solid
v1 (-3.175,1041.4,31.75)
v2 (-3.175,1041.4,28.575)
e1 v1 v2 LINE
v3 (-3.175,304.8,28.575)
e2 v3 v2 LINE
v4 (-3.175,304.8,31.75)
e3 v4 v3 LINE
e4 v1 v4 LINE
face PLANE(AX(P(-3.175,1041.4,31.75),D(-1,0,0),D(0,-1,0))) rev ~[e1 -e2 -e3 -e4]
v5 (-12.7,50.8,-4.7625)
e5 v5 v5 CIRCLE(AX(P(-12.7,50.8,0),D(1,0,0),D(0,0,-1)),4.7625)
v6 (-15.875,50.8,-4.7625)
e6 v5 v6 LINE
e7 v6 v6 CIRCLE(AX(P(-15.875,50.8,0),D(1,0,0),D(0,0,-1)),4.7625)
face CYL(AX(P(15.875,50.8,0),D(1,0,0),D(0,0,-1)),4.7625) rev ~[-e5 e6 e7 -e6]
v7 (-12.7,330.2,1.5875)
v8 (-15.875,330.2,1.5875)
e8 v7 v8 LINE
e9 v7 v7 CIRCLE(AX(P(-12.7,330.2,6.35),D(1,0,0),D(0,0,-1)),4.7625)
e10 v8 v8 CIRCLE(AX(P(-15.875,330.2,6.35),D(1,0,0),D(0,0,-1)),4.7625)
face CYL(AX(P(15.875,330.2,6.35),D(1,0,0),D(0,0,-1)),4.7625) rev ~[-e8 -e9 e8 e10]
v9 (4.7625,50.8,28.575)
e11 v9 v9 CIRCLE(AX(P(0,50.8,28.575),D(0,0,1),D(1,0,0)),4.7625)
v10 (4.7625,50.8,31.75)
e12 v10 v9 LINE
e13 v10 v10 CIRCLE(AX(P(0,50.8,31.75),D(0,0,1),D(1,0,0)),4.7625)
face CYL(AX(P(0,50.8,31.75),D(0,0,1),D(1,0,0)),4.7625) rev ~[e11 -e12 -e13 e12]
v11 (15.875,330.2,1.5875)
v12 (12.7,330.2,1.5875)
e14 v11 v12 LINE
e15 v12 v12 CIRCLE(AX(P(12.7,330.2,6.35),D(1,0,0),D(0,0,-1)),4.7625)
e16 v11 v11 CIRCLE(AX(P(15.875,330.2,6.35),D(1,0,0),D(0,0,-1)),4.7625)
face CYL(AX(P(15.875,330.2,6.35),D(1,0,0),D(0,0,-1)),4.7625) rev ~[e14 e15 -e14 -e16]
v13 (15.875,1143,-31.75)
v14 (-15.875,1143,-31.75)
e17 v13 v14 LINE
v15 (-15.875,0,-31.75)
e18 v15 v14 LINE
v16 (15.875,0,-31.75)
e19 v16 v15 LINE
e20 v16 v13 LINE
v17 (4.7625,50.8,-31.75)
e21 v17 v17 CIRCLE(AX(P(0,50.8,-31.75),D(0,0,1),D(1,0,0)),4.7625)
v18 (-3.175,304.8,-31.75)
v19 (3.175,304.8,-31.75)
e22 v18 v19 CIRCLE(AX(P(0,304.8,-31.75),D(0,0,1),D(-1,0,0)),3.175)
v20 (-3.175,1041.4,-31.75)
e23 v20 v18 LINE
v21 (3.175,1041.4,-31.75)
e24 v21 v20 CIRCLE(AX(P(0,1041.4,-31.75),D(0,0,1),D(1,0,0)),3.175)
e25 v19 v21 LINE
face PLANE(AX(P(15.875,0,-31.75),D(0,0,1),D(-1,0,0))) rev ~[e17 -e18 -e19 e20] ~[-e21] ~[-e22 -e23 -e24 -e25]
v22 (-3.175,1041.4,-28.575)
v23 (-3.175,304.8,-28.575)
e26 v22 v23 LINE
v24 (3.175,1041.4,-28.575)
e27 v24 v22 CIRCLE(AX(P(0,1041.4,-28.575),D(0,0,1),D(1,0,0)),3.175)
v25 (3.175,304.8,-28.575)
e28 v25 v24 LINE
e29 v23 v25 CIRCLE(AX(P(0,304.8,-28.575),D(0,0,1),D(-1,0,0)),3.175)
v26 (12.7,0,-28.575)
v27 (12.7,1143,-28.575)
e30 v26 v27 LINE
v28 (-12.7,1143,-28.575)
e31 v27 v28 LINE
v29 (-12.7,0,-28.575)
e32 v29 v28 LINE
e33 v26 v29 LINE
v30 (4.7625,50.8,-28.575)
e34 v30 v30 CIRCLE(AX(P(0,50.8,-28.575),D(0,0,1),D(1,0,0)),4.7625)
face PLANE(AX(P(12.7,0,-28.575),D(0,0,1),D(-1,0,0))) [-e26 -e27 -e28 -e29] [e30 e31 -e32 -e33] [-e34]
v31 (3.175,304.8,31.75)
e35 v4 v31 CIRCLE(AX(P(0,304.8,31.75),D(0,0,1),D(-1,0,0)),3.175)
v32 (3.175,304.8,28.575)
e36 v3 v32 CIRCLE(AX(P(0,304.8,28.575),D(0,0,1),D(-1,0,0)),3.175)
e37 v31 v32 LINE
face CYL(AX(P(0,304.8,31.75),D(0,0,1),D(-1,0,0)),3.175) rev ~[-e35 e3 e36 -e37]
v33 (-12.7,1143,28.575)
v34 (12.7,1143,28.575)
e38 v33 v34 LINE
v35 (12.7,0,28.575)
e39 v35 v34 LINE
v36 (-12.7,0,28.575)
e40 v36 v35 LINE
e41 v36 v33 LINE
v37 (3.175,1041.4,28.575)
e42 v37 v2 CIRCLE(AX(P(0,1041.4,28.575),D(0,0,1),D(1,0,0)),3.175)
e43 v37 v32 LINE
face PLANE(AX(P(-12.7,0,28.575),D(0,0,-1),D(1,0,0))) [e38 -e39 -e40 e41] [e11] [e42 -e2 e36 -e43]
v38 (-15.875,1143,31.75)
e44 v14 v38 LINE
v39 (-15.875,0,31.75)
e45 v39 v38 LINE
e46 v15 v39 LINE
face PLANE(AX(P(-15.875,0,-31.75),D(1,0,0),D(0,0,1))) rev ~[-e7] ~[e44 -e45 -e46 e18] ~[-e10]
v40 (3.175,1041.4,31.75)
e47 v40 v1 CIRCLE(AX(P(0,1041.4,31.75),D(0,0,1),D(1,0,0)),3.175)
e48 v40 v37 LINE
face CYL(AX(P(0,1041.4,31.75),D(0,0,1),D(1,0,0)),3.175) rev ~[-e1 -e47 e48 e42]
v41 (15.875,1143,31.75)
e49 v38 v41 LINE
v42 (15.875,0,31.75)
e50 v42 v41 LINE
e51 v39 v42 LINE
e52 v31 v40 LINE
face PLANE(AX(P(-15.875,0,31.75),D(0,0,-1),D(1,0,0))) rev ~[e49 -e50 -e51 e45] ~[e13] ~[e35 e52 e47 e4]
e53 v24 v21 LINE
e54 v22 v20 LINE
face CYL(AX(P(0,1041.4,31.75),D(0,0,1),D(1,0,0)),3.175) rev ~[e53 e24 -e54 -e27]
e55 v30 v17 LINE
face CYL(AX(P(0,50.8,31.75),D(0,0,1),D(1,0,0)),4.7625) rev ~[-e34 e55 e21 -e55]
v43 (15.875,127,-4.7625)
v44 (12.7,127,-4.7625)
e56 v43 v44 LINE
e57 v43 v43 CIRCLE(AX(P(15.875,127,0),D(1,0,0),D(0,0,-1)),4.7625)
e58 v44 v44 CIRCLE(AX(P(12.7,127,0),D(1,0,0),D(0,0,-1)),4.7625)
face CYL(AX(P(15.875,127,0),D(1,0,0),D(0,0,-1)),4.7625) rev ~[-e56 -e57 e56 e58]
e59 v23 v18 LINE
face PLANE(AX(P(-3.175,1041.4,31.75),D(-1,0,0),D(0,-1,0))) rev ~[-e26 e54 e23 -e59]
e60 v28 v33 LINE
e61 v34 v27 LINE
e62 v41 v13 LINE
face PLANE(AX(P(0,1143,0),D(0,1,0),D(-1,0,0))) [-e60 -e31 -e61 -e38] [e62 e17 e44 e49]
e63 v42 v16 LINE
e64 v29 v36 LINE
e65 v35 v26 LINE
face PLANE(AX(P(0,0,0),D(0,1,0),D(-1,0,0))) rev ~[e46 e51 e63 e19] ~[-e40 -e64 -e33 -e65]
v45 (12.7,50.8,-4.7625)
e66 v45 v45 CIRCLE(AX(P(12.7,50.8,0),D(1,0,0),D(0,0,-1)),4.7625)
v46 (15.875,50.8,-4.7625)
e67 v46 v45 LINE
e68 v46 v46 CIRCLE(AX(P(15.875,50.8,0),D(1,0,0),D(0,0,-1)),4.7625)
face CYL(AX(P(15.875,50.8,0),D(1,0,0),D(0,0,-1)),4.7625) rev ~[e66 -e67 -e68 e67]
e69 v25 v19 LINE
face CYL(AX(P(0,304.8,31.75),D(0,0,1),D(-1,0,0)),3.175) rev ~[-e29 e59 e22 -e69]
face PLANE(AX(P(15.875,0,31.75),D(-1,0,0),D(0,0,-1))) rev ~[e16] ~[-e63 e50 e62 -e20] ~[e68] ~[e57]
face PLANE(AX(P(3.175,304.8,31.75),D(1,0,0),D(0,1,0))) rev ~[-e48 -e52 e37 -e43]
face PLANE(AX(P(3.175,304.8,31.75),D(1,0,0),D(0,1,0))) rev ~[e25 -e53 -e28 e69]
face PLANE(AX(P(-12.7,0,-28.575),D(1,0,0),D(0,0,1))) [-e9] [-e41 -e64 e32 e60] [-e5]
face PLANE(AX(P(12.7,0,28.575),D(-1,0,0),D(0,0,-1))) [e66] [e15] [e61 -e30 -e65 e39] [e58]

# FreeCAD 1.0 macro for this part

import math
import FreeCAD as App
import Part
import Sketcher

V = App.Vector
Q = App.Units.Quantity


def add_polygon(sketch, points):
    """Adds a closed chain of lines whose ends are joined by coincident constraints."""
    first, n = sketch.GeometryCount, len(points)
    for a, b in zip(points, points[1:] + points[:1]):
        sketch.addGeometry(Part.LineSegment(App.Vector(*a, 0), App.Vector(*b, 0)), False)
    for i in range(n):
        sketch.addConstraint(Sketcher.Constraint("Coincident", first + i, 2, first + (i + 1) % n, 1))

doc = App.newDocument("Part")
body = doc.addObject("PartDesign::Body", "Body")

# Sketch on XZ plane
sketch1 = body.newObject("Sketcher::SketchObject", "Sketch")
sketch1.AttachmentSupport = (doc.getObject("XZ_Plane"), [""])
sketch1.MapMode = "FlatFace"
add_polygon(sketch1, [(-15.875, -31.75), (-15.875, 31.75), (15.875, 31.75), (15.875, -31.75)])  # lines 0-3
add_polygon(sketch1, [(12.7, 28.575), (-12.7, 28.575), (-12.7, -28.575), (12.7, -28.575)])  # lines 4-7
sketch1.addConstraint([
    Sketcher.Constraint("Vertical", 0),
    Sketcher.Constraint("Horizontal", 1),
    Sketcher.Constraint("Vertical", 2),
    Sketcher.Constraint("Horizontal", 3),
    Sketcher.Constraint("Horizontal", 4),
    Sketcher.Constraint("Vertical", 5),
    Sketcher.Constraint("Horizontal", 6),
    Sketcher.Constraint("Vertical", 7),
    Sketcher.Constraint("Symmetric", 0, 2, 2, 2, -1, 1),
    Sketcher.Constraint("Symmetric", 4, 2, 6, 2, -1, 1),
    Sketcher.Constraint("DistanceY", 0, 1, 0, 2, Q("2.5 in")),
    Sketcher.Constraint("DistanceX", 1, 1, 1, 2, Q("1.25 in")),
    Sketcher.Constraint("DistanceX", 4, 2, 4, 1, Q("1 in")),
    Sketcher.Constraint("DistanceY", 4, 2, 0, 2, Q("0.125 in")),
])
pad1 = body.newObject("PartDesign::Pad", "Pad")
pad1.Profile = sketch1
pad1.Length = Q("45 in")
pad1.Reversed = True

# Sketch on XY plane
sketch2 = body.newObject("Sketcher::SketchObject", "Sketch001")
sketch2.AttachmentSupport = (doc.getObject("XY_Plane"), [""])
sketch2.MapMode = "FlatFace"
sketch2.AttachmentOffset = App.Placement(V(0, 0, 1.25 * 25.4), App.Rotation())
sketch2.addGeometry([
    Part.ArcOfCircle(Part.Circle(V(0, 304.8, 0), V(0, 0, 1), 3.175), math.radians(180), math.radians(360)),
    Part.LineSegment(V(3.175, 304.8, 0), V(3.175, 1041.4, 0)),
    Part.ArcOfCircle(Part.Circle(V(0, 1041.4, 0), V(0, 0, 1), 3.175), math.radians(0), math.radians(180)),
    Part.LineSegment(V(-3.175, 1041.4, 0), V(-3.175, 304.8, 0)),
], False)
sketch2.addConstraint([
    Sketcher.Constraint("Tangent", 0, 2, 1, 1),
    Sketcher.Constraint("Tangent", 1, 2, 2, 1),
    Sketcher.Constraint("Tangent", 2, 2, 3, 1),
    Sketcher.Constraint("Tangent", 3, 2, 0, 1),
    Sketcher.Constraint("Vertical", 1),
    Sketcher.Constraint("Vertical", 3),
    Sketcher.Constraint("PointOnObject", 0, 3, -2),
    Sketcher.Constraint("DistanceY", 1, 1, 1, 2, Q("29 in")),
    Sketcher.Constraint("DistanceY", -1, 1, 0, 3, Q("12 in")),
    Sketcher.Constraint("Radius", 0, Q("0.125 in")),
])
pocket1 = body.newObject("PartDesign::Pocket", "Pocket")
pocket1.Profile = sketch2
pocket1.Type = "ThroughAll"

# Sketch on YZ plane
sketch3 = body.newObject("Sketcher::SketchObject", "Sketch002")
sketch3.AttachmentSupport = (doc.getObject("YZ_Plane"), [""])
sketch3.MapMode = "FlatFace"
sketch3.AttachmentOffset = App.Placement(V(0, 0, 0.625 * 25.4), App.Rotation())
sketch3.addGeometry(Part.Circle(V(127, 0, 0), V(0, 0, 1), 4.7625), False)
sketch3.addConstraint([
    Sketcher.Constraint("PointOnObject", 0, 3, -1),
    Sketcher.Constraint("Diameter", 0, Q("0.375 in")),
    Sketcher.Constraint("DistanceX", -1, 1, 0, 3, Q("5 in")),
])
pocket2 = body.newObject("PartDesign::Pocket", "Pocket001")
pocket2.Profile = sketch3
pocket2.Type = "UpToFirst"

# Sketch on XY plane
sketch4 = body.newObject("Sketcher::SketchObject", "Sketch003")
sketch4.AttachmentSupport = (doc.getObject("XY_Plane"), [""])
sketch4.MapMode = "FlatFace"
sketch4.AttachmentOffset = App.Placement(V(0, 0, 1.25 * 25.4), App.Rotation())
sketch4.addGeometry(Part.Circle(V(0, 50.8, 0), V(0, 0, 1), 4.7625), False)
sketch4.addConstraint([
    Sketcher.Constraint("PointOnObject", 0, 3, -2),
    Sketcher.Constraint("Diameter", 0, Q("0.375 in")),
    Sketcher.Constraint("DistanceY", -1, 1, 0, 3, Q("2 in")),
])
pocket3 = body.newObject("PartDesign::Pocket", "Pocket002")
pocket3.Profile = sketch4
pocket3.Type = "ThroughAll"

# Sketch on YZ plane
sketch5 = body.newObject("Sketcher::SketchObject", "Sketch004")
sketch5.AttachmentSupport = (doc.getObject("YZ_Plane"), [""])
sketch5.MapMode = "FlatFace"
sketch5.AttachmentOffset = App.Placement(V(0, 0, 0.625 * 25.4), App.Rotation())
sketch5.addGeometry(Part.Circle(V(50.8, 0, 0), V(0, 0, 1), 4.7625), False)
sketch5.addConstraint([
    Sketcher.Constraint("PointOnObject", 0, 3, -1),
    Sketcher.Constraint("Diameter", 0, Q("0.375 in")),
    Sketcher.Constraint("DistanceX", -1, 1, 0, 3, Q("2 in")),
])
pocket4 = body.newObject("PartDesign::Pocket", "Pocket003")
pocket4.Profile = sketch5
pocket4.Type = "ThroughAll"

# Sketch on YZ plane
sketch6 = body.newObject("Sketcher::SketchObject", "Sketch005")
sketch6.AttachmentSupport = (doc.getObject("YZ_Plane"), [""])
sketch6.MapMode = "FlatFace"
sketch6.AttachmentOffset = App.Placement(V(0, 0, 0.625 * 25.4), App.Rotation())
sketch6.addGeometry(Part.Circle(V(330.2, 6.35, 0), V(0, 0, 1), 4.7625), False)
sketch6.addConstraint([
    Sketcher.Constraint("Diameter", 0, Q("0.375 in")),
    Sketcher.Constraint("DistanceX", -1, 1, 0, 3, Q("13 in")),
    Sketcher.Constraint("DistanceY", -1, 1, 0, 3, Q("0.25 in")),
])
pocket5 = body.newObject("PartDesign::Pocket", "Pocket004")
pocket5.Profile = sketch6
pocket5.Type = "ThroughAll"

doc.recompute()
